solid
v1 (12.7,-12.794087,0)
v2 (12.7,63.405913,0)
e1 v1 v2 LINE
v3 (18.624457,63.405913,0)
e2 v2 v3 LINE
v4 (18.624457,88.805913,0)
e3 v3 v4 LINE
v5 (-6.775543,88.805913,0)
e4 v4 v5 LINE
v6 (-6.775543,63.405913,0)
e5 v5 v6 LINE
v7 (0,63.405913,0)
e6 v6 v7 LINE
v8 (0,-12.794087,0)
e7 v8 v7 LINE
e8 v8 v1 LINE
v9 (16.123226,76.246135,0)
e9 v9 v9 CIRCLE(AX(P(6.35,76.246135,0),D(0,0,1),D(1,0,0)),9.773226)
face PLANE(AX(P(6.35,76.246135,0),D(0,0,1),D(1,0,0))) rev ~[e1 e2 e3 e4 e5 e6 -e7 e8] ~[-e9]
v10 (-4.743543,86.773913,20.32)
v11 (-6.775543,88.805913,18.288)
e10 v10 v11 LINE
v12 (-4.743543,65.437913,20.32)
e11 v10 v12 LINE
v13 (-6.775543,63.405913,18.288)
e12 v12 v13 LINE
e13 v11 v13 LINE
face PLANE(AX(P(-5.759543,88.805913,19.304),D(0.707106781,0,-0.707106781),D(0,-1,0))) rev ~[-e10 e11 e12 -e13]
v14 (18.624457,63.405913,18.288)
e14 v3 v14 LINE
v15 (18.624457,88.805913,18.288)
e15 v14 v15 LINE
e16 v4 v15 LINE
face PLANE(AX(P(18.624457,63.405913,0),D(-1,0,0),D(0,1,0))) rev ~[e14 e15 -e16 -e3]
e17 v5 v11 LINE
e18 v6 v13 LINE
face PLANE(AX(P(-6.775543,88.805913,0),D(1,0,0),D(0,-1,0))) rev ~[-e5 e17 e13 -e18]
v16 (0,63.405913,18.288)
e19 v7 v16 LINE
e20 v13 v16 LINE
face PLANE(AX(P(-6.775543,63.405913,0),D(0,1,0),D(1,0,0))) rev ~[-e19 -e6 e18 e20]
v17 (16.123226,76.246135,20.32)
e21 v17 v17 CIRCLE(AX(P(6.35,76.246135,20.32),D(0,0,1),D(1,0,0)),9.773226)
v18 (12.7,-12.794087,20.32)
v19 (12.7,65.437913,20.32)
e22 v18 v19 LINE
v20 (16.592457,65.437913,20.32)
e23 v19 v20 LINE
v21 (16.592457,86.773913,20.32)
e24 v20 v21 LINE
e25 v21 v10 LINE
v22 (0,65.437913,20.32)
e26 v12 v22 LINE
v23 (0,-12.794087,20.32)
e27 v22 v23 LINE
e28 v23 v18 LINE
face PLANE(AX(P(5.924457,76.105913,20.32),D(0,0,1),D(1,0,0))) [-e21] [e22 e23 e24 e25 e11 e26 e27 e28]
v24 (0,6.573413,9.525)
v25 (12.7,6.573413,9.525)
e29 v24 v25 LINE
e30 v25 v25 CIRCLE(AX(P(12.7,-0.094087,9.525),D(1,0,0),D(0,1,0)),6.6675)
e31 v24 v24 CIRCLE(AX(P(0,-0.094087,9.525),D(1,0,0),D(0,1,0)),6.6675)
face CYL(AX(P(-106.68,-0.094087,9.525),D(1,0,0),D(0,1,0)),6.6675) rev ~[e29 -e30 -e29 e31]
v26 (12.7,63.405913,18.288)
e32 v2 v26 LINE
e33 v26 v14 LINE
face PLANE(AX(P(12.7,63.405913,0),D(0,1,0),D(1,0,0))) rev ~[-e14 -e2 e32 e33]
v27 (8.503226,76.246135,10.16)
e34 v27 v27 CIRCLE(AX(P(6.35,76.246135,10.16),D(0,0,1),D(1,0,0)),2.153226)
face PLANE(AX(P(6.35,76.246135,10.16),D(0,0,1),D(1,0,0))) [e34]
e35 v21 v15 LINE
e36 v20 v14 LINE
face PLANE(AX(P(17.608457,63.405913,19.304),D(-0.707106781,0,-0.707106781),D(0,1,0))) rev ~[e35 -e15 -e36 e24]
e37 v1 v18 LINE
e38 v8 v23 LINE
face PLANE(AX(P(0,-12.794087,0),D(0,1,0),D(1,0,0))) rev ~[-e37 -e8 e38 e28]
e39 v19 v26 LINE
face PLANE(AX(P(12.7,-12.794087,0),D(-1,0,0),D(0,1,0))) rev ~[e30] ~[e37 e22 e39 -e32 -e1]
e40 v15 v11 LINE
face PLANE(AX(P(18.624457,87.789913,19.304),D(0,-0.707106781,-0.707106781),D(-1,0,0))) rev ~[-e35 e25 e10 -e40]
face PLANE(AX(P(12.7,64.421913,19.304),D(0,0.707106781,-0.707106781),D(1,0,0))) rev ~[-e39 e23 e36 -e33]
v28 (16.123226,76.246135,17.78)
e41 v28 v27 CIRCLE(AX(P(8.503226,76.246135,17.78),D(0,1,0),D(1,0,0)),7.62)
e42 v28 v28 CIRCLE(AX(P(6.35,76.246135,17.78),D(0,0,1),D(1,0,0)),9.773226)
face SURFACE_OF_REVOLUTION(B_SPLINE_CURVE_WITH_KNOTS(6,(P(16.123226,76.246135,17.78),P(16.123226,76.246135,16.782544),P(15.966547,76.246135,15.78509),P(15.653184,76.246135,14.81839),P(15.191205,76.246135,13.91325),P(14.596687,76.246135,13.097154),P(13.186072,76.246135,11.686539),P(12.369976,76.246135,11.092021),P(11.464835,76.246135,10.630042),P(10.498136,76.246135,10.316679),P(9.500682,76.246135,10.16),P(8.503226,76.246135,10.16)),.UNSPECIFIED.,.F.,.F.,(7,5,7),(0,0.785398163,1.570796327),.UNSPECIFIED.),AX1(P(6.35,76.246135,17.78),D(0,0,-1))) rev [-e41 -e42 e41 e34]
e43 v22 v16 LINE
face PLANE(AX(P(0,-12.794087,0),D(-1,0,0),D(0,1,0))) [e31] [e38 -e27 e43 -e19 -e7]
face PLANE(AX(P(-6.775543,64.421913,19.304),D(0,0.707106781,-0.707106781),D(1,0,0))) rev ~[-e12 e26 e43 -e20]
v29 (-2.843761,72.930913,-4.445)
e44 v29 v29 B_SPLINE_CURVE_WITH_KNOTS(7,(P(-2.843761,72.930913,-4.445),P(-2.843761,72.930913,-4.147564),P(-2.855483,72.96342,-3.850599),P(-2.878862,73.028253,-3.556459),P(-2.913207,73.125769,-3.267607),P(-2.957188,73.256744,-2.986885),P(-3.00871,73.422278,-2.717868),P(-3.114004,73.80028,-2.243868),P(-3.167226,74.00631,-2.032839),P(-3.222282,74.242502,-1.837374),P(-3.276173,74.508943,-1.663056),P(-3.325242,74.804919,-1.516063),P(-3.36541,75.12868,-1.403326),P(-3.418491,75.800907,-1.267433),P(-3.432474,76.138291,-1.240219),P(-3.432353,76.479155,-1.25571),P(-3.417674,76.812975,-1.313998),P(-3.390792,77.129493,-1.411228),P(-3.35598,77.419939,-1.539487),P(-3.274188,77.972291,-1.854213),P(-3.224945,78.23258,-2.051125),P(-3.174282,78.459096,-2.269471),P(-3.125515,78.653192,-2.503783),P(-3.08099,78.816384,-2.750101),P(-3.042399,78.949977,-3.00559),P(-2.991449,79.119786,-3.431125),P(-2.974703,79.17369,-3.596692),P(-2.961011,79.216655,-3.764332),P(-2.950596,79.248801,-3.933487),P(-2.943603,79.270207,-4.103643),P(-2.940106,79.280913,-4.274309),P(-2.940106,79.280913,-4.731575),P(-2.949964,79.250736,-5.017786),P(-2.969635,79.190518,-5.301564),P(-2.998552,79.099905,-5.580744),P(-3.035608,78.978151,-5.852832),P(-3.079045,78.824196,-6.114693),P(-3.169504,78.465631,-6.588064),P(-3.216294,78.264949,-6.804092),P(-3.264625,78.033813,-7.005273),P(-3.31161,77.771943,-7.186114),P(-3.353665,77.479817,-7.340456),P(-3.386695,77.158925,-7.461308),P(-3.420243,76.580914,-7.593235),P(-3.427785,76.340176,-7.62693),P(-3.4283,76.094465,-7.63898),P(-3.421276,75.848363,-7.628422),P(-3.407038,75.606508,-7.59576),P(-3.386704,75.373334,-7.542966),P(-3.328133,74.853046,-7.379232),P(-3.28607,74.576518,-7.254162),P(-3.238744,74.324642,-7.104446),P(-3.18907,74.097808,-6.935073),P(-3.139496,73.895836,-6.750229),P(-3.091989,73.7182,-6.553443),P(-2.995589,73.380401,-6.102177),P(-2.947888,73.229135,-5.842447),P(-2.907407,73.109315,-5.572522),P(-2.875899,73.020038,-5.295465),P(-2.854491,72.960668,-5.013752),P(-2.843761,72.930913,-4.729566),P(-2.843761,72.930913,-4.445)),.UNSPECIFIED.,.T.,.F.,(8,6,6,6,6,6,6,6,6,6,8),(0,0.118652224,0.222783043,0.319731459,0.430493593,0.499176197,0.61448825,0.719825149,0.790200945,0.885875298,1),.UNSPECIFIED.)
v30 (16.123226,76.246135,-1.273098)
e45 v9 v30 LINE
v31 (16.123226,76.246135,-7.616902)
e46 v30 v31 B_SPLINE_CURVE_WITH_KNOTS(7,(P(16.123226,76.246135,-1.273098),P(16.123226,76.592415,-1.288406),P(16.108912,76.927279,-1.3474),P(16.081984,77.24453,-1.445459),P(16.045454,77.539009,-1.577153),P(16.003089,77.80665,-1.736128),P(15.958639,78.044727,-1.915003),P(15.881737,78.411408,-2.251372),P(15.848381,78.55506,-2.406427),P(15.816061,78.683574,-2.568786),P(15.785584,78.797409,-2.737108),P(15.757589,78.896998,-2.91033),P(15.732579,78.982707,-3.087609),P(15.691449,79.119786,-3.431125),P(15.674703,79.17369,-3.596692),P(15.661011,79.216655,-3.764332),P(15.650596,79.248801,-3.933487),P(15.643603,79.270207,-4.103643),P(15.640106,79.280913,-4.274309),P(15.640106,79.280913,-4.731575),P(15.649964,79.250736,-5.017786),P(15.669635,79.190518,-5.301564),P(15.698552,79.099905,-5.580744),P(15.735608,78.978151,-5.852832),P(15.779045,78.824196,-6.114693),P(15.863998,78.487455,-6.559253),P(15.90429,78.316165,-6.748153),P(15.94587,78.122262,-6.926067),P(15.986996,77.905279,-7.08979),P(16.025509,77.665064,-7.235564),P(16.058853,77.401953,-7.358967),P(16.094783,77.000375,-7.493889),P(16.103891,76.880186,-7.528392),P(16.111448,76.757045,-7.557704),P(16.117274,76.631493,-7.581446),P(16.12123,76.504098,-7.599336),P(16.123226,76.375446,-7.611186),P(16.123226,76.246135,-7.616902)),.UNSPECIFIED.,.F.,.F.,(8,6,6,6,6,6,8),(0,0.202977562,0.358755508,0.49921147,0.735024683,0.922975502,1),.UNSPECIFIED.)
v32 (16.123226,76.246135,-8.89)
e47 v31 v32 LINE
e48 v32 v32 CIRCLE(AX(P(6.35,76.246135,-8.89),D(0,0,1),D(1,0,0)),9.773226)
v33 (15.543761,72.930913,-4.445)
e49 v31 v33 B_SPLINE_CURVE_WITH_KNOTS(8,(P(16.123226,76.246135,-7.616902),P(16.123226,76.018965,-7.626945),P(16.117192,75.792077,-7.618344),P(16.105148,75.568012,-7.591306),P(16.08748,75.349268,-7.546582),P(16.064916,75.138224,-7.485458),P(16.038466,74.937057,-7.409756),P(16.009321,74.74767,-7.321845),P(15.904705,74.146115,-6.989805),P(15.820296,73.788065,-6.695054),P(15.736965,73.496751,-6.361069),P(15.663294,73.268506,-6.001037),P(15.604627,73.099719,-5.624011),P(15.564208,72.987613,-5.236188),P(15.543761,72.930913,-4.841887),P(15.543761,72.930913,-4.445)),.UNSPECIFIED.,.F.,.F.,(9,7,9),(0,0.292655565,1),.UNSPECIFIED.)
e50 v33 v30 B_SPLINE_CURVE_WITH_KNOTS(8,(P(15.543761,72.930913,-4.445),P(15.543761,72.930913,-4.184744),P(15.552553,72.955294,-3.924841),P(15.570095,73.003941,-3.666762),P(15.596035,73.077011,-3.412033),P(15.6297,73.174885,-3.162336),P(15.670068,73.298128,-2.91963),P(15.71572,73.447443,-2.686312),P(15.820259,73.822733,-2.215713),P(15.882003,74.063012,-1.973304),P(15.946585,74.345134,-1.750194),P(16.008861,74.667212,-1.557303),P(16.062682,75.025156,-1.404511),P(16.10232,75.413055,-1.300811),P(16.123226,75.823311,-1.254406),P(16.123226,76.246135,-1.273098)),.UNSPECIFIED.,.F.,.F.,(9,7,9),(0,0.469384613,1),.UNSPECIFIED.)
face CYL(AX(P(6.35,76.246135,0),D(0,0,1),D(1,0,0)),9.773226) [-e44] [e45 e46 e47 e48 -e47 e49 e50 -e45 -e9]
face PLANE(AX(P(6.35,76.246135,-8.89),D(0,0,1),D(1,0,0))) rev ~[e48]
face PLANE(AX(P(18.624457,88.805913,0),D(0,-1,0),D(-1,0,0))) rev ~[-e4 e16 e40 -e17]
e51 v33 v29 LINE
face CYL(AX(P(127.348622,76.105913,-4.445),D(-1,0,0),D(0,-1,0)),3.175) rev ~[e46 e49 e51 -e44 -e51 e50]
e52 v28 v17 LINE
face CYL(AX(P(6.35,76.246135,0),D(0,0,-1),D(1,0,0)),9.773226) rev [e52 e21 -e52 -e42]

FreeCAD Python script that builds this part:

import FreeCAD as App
import Part
import Sketcher

V = App.Vector
Q = App.Units.Quantity


def edges_at(feature, points):
    """Names of the edges that pass closest to the given points."""
    edges = feature.Shape.Edges
    near = lambda p: min(range(len(edges)), key=lambda i: edges[i].distToShape(Part.Vertex(*p))[0])
    return sorted({f"Edge{near(p) + 1}" for p in points})


def add_polygon(sketch, points):
    """Adds a closed chain of lines whose ends are joined by coincident constraints."""
    first, n = sketch.GeometryCount, len(points)
    for a, b in zip(points, points[1:] + points[:1]):
        sketch.addGeometry(Part.LineSegment(App.Vector(*a, 0), App.Vector(*b, 0)), False)
    for i in range(n):
        sketch.addConstraint(Sketcher.Constraint("Coincident", first + i, 2, first + (i + 1) % n, 1))

doc = App.newDocument("Part")
params = doc.addObject("Spreadsheet::Sheet", "Params")
for row, (alias, value) in enumerate([
    ("sketch1_width", "1 in"),
    ("sketch1_height", "3 in"),
    ("sketch1_width2", "0.5 in"),
    ("pad1_length", "0.8 in"),
    ("pad2_length", "0.4 in"),
    ("fillet_radius", "0.3 in"),
    ("sketch3_diameter", "0.525 in"),
    ("hole_diameter", "0.525 in"),
    ("chamfer_size", "0.08 in"),
    ("pad3_length", "0.35 in"),
    ("sketch5_diameter", "0.25 in"),
    ("hole2_diameter", "0.25 in"),
], start=1):
    params.set(f"A{row}", alias)
    params.set(f"B{row}", "=" + value)
    params.setAlias(f"B{row}", alias)

body = doc.addObject("PartDesign::Body", "Body")

# Sketch on XY plane
sketch1 = body.newObject("Sketcher::SketchObject", "Sketch")
sketch1.AttachmentSupport = (doc.getObject("XY_Plane"), [""])
sketch1.MapMode = "FlatFace"
add_polygon(sketch1, [(-7, 63), (0, 63), (0, -13), (13, -13), (13, 63), (19, 63), (19, 89), (-7, 89)])  # lines 0-7
sketch1.addGeometry(Part.Circle(V(6, 76, 0), V(0, 0, 1), 10), False)  # 8
sketch1.addConstraint([
    Sketcher.Constraint("Horizontal", 0),
    Sketcher.Constraint("Vertical", 1),
    Sketcher.Constraint("Horizontal", 2),
    Sketcher.Constraint("Vertical", 3),
    Sketcher.Constraint("Horizontal", 4),
    Sketcher.Constraint("Vertical", 5),
    Sketcher.Constraint("Horizontal", 6),
    Sketcher.Constraint("Vertical", 7),
    Sketcher.Constraint("PointOnObject", 0, 2, -2),
    Sketcher.Constraint("Horizontal", 0, 2, 3, 2),
    Sketcher.Constraint("Equal", 6, 5),
    Sketcher.Constraint("DistanceX", 6, 2, 6, 1, Q("1 in")),
    Sketcher.Constraint("DistanceY", 1, 2, 1, 1, Q("3 in")),
    Sketcher.Constraint("DistanceX", 2, 1, 2, 2, Q("0.5 in")),
    Sketcher.Constraint("DistanceX", -1, 1, 8, 3, Q("0.25 in")),
    Sketcher.Constraint("Diameter", 8, 19.546452),
    Sketcher.Constraint("DistanceX", 0, 1, 0, 2, 6.775543),
    Sketcher.Constraint("DistanceY", -1, 1, 8, 3, 76.246135),
    Sketcher.Constraint("DistanceY", -1, 1, 0, 2, 63.405913),
])
sketch1.setExpression("Constraints[19]", "Params.sketch1_width")
sketch1.setExpression("Constraints[20]", "Params.sketch1_height")
sketch1.setExpression("Constraints[21]", "Params.sketch1_width2")
pad1 = body.newObject("PartDesign::Pad", "Pad")
pad1.Profile = sketch1
pad1.setExpression("Length", "Params.pad1_length")

# Sketch on XY plane
sketch2 = body.newObject("Sketcher::SketchObject", "Sketch001")
sketch2.AttachmentSupport = (doc.getObject("XY_Plane"), [""])
sketch2.MapMode = "FlatFace"
sketch2.addGeometry(Part.Circle(V(6, 76, 0), V(0, 0, 1), 10), False)
sketch2.addConstraint([
    Sketcher.Constraint("DistanceX", -1, 1, 0, 3, Q("0.25 in")),
    Sketcher.Constraint("Diameter", 0, 19.546452),
    Sketcher.Constraint("DistanceY", -1, 1, 0, 3, 76.246135),
])
pad2 = body.newObject("PartDesign::Pad", "Pad001")
pad2.Profile = sketch2
pad2.setExpression("Length", "Params.pad2_length")
doc.recompute()

fillet = body.newObject("PartDesign::Fillet", "Fillet")
fillet.Base = (pad2, edges_at(pad2, [(-3.423, 76.246, 10.16)]))
fillet.setExpression("Radius", "Params.fillet_radius")

# Sketch on YZ plane
sketch3 = body.newObject("Sketcher::SketchObject", "Sketch002")
sketch3.AttachmentSupport = (doc.getObject("YZ_Plane"), [""])
sketch3.MapMode = "FlatFace"
sketch3.addGeometry(Part.Circle(V(0, 10, 0), V(0, 0, 1), 7), False)
sketch3.addConstraint([
    Sketcher.Constraint("Diameter", 0, Q("0.525 in")),
    Sketcher.Constraint("DistanceY", -1, 1, 0, 3, Q("0.375 in")),
    Sketcher.Constraint("DistanceX", 0, 3, -1, 1, 0.094087),
])
sketch3.setExpression("Constraints[0]", "Params.sketch3_diameter")
doc.recompute()
hole = body.newObject("PartDesign::Hole", "Hole")
hole.Profile = sketch3
hole.ThreadType = "None"
hole.setExpression("Diameter", "Params.hole_diameter")
hole.DepthType = "ThroughAll"
hole.Reversed = True
doc.recompute()

chamfer = body.newObject("PartDesign::Chamfer", "Chamfer")
chamfer.Base = (hole, edges_at(hole, [
    (-6.776, 76.106, 20.32),
    (18.624, 76.106, 20.32),
    (-3.388, 63.406, 20.32),
    (15.662, 63.406, 20.32),
    (5.924, 88.806, 20.32),
]))
chamfer.setExpression("Size", "Params.chamfer_size")

# Sketch on XY plane
sketch4 = body.newObject("Sketcher::SketchObject", "Sketch003")
sketch4.AttachmentSupport = (doc.getObject("XY_Plane"), [""])
sketch4.MapMode = "FlatFace"
sketch4.addGeometry(Part.Circle(V(6, 76, 0), V(0, 0, 1), 10), False)
sketch4.addConstraint([
    Sketcher.Constraint("DistanceX", -1, 1, 0, 3, Q("0.25 in")),
    Sketcher.Constraint("Diameter", 0, 19.546452),
    Sketcher.Constraint("DistanceY", -1, 1, 0, 3, 76.246135),
])
pad3 = body.newObject("PartDesign::Pad", "Pad002")
pad3.Profile = sketch4
pad3.setExpression("Length", "Params.pad3_length")
pad3.Reversed = True

# Sketch on YZ plane
sketch5 = body.newObject("Sketcher::SketchObject", "Sketch004")
sketch5.AttachmentSupport = (doc.getObject("YZ_Plane"), [""])
sketch5.MapMode = "FlatFace"
sketch5.AttachmentOffset = App.Placement(V(0, 0, 18.624457), App.Rotation())
sketch5.addGeometry(Part.Circle(V(76.1, -4.4, 0), V(0, 0, 1), 3.2), False)
sketch5.addConstraint([
    Sketcher.Constraint("Diameter", 0, Q("0.25 in")),
    Sketcher.Constraint("DistanceY", 0, 3, -1, 1, Q("0.175 in")),
    Sketcher.Constraint("DistanceX", -1, 1, 0, 3, 76.105913),
])
sketch5.setExpression("Constraints[0]", "Params.sketch5_diameter")
doc.recompute()
hole2 = body.newObject("PartDesign::Hole", "Hole001")
hole2.Profile = sketch5
hole2.ThreadType = "None"
hole2.setExpression("Diameter", "Params.hole2_diameter")
hole2.DepthType = "ThroughAll"

doc.recompute()
